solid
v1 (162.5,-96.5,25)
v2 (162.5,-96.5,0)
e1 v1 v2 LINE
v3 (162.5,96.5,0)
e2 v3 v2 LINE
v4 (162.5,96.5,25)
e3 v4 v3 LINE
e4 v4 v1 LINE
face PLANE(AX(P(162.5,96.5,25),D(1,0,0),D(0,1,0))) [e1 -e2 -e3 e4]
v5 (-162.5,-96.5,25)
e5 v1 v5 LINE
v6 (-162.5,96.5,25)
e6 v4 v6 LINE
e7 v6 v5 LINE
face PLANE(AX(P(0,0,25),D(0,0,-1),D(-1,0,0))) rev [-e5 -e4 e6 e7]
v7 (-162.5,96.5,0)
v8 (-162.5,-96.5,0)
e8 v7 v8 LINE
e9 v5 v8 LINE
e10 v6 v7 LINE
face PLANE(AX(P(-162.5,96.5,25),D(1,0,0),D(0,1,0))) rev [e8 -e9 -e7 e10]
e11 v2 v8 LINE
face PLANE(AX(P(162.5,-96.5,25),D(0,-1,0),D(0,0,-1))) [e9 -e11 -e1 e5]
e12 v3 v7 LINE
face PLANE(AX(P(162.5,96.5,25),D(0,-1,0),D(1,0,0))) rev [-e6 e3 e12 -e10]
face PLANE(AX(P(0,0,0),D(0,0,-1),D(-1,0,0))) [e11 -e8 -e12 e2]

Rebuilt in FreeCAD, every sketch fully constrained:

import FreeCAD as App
import Part
import Sketcher

V = App.Vector
Q = App.Units.Quantity


def add_polygon(sketch, points):
    """Adds a closed chain of lines whose ends are joined by coincident constraints."""
    first, n = sketch.GeometryCount, len(points)
    for a, b in zip(points, points[1:] + points[:1]):
        sketch.addGeometry(Part.LineSegment(App.Vector(*a, 0), App.Vector(*b, 0)), False)
    for i in range(n):
        sketch.addConstraint(Sketcher.Constraint("Coincident", first + i, 2, first + (i + 1) % n, 1))

doc = App.newDocument("Part")
body = doc.addObject("PartDesign::Body", "Body")

# Sketch on XY plane
sketch1 = body.newObject("Sketcher::SketchObject", "Sketch")
sketch1.AttachmentSupport = (doc.getObject("XY_Plane"), [""])
sketch1.MapMode = "FlatFace"
add_polygon(sketch1, [(-162.5, 96.5), (-162.5, -96.5), (162.5, -96.5), (162.5, 96.5)])  # lines 0-3
sketch1.addConstraint([
    Sketcher.Constraint("Vertical", 0),
    Sketcher.Constraint("Horizontal", 1),
    Sketcher.Constraint("Vertical", 2),
    Sketcher.Constraint("Horizontal", 3),
    Sketcher.Constraint("Symmetric", 0, 2, 2, 2, -1, 1),
    Sketcher.Constraint("DistanceX", 1, 1, 1, 2, Q("325 mm")),
    Sketcher.Constraint("DistanceY", 0, 2, 0, 1, Q("193 mm")),
])
pad1 = body.newObject("PartDesign::Pad", "Pad")
pad1.Profile = sketch1
pad1.Length = 25

doc.recompute()
